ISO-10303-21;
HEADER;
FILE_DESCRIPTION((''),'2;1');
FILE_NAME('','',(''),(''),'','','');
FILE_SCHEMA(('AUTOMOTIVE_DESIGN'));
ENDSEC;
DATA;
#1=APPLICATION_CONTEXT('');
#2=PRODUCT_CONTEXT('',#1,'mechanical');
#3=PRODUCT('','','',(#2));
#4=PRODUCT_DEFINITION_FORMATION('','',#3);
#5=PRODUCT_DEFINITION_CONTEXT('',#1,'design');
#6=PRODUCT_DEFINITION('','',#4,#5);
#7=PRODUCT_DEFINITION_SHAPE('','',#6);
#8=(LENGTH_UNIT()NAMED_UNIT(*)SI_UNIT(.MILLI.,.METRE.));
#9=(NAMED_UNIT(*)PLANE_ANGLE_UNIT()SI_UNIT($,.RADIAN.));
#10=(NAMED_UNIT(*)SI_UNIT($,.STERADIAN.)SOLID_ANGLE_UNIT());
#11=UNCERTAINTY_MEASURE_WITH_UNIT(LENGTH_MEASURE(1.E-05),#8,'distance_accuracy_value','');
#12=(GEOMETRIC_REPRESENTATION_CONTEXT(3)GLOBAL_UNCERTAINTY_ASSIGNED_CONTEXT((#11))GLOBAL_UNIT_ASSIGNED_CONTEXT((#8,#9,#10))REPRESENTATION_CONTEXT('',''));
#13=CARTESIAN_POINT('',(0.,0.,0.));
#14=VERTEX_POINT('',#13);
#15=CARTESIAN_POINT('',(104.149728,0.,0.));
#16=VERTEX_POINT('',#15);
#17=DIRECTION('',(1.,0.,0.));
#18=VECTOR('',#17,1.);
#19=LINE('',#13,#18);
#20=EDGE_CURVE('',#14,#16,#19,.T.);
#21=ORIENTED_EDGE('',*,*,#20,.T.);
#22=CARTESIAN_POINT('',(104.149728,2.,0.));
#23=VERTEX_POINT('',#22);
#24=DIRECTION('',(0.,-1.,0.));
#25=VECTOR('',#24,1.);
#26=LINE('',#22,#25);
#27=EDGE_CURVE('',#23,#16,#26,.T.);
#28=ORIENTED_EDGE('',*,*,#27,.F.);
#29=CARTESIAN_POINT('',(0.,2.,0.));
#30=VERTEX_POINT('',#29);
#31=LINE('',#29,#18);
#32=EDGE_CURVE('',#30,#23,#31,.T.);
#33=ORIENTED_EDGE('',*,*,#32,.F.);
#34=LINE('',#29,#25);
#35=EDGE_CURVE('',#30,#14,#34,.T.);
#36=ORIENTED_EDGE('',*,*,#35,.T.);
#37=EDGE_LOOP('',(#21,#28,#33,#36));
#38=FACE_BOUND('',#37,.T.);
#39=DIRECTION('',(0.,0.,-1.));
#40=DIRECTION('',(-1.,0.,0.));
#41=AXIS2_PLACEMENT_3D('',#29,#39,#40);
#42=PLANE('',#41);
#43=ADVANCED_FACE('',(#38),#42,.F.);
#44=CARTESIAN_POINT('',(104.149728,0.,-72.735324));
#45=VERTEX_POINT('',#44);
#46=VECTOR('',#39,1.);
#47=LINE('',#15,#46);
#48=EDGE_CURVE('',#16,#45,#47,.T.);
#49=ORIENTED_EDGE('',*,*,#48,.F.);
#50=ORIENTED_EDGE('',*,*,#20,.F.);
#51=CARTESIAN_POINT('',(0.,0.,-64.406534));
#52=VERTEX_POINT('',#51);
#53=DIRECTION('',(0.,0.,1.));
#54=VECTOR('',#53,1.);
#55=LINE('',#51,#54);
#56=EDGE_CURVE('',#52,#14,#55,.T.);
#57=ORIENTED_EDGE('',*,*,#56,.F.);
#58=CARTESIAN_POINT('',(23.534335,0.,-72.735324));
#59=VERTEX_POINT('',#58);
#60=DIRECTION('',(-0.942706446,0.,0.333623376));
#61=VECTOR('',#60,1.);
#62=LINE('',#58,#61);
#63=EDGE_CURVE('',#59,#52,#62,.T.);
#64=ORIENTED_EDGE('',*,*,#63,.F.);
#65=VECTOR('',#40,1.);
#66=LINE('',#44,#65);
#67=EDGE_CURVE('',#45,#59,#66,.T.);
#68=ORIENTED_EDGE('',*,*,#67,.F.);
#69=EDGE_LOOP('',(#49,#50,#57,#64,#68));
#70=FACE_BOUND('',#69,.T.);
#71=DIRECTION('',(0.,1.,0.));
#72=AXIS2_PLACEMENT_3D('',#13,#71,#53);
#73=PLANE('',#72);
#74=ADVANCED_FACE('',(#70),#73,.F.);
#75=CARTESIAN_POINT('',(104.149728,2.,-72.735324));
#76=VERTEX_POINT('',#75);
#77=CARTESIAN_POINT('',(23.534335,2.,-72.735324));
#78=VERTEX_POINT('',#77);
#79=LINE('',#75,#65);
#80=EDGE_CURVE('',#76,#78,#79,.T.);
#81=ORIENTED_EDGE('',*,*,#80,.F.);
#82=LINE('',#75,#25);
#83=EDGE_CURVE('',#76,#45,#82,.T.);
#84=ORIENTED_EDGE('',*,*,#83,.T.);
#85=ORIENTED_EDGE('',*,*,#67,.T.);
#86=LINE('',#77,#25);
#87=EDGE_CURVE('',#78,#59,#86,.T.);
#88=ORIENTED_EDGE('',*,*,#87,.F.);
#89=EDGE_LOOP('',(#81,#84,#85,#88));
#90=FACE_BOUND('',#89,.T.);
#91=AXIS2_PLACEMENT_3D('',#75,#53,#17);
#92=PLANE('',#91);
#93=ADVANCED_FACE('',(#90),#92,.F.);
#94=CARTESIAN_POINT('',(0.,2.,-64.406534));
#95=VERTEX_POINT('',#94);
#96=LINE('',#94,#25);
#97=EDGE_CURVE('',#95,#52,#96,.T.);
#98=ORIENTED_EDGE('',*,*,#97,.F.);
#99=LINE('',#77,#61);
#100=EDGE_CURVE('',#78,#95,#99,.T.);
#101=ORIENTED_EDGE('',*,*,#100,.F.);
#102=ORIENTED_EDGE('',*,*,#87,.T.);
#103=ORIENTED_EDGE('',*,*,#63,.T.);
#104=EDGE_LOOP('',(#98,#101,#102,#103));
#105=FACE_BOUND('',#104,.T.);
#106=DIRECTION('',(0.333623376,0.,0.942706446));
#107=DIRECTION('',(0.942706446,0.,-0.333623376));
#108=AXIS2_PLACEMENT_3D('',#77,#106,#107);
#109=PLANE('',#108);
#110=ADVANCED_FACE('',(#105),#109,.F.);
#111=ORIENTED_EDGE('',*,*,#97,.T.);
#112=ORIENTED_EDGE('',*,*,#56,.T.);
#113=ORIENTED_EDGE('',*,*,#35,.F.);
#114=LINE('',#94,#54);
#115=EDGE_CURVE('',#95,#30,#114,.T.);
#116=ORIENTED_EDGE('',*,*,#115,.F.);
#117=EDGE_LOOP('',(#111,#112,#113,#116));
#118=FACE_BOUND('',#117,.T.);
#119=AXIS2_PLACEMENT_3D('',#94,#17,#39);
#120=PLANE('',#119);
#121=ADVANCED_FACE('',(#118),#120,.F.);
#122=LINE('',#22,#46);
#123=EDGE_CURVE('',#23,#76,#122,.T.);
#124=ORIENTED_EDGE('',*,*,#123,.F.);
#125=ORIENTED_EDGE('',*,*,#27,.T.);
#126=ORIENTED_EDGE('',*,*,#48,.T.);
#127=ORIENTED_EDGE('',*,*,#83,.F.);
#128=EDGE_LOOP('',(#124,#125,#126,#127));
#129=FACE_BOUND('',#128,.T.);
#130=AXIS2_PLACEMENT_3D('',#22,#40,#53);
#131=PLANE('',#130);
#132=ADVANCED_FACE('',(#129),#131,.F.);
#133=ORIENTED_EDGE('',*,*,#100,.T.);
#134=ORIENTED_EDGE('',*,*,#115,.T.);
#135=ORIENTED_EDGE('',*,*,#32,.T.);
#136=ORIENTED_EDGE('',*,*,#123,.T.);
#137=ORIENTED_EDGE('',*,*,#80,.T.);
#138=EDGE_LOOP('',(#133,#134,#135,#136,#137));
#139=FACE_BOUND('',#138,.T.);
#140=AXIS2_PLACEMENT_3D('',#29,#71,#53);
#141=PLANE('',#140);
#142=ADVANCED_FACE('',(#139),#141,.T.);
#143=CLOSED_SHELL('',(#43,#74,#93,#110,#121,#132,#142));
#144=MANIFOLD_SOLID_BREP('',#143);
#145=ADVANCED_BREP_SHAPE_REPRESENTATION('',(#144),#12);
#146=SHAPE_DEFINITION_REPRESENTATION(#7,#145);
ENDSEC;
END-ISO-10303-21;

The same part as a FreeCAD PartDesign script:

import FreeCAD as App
import Part
import Sketcher
from FreeCAD import Vector


def add_polygon(sketch, points):
    """Adds a closed chain of lines whose ends are joined by coincident constraints."""
    first, n = sketch.GeometryCount, len(points)
    for a, b in zip(points, points[1:] + points[:1]):
        sketch.addGeometry(Part.LineSegment(App.Vector(*a, 0), App.Vector(*b, 0)), False)
    for i in range(n):
        sketch.addConstraint(Sketcher.Constraint("Coincident", first + i, 2, first + (i + 1) % n, 1))

doc = App.newDocument("Part")
body = doc.addObject("PartDesign::Body", "Body")

sketch1 = doc.addObject("Sketcher::SketchObject", "Sketch")
body.addObject(sketch1)
sketch1.AttachmentSupport = (doc.XZ_Plane, [""])
sketch1.MapMode = "FlatFace"
add_polygon(sketch1, [(0, 0), (104, 0), (104, -73), (24, -73), (0, -64)])
sketch1.addConstraint([
    Sketcher.Constraint("Horizontal", 0),
    Sketcher.Constraint("Vertical", 1),
    Sketcher.Constraint("Horizontal", 2),
    Sketcher.Constraint("Vertical", 4),
    Sketcher.Constraint("Coincident", 4, 2, -1, 1),
    Sketcher.Constraint("Distance", 3, 24.964649),
    Sketcher.Constraint("DistanceX", 0, 1, 0, 2, 104.149728),
    Sketcher.Constraint("DistanceX", 2, 2, 2, 1, 80.615393),
    Sketcher.Constraint("DistanceY", 1, 2, 1, 1, 72.735324),
])
pad1 = doc.addObject("PartDesign::Pad", "Pad")
body.addObject(pad1)
pad1.Profile = sketch1
pad1.Length = 2
pad1.Reversed = True

doc.recompute()
